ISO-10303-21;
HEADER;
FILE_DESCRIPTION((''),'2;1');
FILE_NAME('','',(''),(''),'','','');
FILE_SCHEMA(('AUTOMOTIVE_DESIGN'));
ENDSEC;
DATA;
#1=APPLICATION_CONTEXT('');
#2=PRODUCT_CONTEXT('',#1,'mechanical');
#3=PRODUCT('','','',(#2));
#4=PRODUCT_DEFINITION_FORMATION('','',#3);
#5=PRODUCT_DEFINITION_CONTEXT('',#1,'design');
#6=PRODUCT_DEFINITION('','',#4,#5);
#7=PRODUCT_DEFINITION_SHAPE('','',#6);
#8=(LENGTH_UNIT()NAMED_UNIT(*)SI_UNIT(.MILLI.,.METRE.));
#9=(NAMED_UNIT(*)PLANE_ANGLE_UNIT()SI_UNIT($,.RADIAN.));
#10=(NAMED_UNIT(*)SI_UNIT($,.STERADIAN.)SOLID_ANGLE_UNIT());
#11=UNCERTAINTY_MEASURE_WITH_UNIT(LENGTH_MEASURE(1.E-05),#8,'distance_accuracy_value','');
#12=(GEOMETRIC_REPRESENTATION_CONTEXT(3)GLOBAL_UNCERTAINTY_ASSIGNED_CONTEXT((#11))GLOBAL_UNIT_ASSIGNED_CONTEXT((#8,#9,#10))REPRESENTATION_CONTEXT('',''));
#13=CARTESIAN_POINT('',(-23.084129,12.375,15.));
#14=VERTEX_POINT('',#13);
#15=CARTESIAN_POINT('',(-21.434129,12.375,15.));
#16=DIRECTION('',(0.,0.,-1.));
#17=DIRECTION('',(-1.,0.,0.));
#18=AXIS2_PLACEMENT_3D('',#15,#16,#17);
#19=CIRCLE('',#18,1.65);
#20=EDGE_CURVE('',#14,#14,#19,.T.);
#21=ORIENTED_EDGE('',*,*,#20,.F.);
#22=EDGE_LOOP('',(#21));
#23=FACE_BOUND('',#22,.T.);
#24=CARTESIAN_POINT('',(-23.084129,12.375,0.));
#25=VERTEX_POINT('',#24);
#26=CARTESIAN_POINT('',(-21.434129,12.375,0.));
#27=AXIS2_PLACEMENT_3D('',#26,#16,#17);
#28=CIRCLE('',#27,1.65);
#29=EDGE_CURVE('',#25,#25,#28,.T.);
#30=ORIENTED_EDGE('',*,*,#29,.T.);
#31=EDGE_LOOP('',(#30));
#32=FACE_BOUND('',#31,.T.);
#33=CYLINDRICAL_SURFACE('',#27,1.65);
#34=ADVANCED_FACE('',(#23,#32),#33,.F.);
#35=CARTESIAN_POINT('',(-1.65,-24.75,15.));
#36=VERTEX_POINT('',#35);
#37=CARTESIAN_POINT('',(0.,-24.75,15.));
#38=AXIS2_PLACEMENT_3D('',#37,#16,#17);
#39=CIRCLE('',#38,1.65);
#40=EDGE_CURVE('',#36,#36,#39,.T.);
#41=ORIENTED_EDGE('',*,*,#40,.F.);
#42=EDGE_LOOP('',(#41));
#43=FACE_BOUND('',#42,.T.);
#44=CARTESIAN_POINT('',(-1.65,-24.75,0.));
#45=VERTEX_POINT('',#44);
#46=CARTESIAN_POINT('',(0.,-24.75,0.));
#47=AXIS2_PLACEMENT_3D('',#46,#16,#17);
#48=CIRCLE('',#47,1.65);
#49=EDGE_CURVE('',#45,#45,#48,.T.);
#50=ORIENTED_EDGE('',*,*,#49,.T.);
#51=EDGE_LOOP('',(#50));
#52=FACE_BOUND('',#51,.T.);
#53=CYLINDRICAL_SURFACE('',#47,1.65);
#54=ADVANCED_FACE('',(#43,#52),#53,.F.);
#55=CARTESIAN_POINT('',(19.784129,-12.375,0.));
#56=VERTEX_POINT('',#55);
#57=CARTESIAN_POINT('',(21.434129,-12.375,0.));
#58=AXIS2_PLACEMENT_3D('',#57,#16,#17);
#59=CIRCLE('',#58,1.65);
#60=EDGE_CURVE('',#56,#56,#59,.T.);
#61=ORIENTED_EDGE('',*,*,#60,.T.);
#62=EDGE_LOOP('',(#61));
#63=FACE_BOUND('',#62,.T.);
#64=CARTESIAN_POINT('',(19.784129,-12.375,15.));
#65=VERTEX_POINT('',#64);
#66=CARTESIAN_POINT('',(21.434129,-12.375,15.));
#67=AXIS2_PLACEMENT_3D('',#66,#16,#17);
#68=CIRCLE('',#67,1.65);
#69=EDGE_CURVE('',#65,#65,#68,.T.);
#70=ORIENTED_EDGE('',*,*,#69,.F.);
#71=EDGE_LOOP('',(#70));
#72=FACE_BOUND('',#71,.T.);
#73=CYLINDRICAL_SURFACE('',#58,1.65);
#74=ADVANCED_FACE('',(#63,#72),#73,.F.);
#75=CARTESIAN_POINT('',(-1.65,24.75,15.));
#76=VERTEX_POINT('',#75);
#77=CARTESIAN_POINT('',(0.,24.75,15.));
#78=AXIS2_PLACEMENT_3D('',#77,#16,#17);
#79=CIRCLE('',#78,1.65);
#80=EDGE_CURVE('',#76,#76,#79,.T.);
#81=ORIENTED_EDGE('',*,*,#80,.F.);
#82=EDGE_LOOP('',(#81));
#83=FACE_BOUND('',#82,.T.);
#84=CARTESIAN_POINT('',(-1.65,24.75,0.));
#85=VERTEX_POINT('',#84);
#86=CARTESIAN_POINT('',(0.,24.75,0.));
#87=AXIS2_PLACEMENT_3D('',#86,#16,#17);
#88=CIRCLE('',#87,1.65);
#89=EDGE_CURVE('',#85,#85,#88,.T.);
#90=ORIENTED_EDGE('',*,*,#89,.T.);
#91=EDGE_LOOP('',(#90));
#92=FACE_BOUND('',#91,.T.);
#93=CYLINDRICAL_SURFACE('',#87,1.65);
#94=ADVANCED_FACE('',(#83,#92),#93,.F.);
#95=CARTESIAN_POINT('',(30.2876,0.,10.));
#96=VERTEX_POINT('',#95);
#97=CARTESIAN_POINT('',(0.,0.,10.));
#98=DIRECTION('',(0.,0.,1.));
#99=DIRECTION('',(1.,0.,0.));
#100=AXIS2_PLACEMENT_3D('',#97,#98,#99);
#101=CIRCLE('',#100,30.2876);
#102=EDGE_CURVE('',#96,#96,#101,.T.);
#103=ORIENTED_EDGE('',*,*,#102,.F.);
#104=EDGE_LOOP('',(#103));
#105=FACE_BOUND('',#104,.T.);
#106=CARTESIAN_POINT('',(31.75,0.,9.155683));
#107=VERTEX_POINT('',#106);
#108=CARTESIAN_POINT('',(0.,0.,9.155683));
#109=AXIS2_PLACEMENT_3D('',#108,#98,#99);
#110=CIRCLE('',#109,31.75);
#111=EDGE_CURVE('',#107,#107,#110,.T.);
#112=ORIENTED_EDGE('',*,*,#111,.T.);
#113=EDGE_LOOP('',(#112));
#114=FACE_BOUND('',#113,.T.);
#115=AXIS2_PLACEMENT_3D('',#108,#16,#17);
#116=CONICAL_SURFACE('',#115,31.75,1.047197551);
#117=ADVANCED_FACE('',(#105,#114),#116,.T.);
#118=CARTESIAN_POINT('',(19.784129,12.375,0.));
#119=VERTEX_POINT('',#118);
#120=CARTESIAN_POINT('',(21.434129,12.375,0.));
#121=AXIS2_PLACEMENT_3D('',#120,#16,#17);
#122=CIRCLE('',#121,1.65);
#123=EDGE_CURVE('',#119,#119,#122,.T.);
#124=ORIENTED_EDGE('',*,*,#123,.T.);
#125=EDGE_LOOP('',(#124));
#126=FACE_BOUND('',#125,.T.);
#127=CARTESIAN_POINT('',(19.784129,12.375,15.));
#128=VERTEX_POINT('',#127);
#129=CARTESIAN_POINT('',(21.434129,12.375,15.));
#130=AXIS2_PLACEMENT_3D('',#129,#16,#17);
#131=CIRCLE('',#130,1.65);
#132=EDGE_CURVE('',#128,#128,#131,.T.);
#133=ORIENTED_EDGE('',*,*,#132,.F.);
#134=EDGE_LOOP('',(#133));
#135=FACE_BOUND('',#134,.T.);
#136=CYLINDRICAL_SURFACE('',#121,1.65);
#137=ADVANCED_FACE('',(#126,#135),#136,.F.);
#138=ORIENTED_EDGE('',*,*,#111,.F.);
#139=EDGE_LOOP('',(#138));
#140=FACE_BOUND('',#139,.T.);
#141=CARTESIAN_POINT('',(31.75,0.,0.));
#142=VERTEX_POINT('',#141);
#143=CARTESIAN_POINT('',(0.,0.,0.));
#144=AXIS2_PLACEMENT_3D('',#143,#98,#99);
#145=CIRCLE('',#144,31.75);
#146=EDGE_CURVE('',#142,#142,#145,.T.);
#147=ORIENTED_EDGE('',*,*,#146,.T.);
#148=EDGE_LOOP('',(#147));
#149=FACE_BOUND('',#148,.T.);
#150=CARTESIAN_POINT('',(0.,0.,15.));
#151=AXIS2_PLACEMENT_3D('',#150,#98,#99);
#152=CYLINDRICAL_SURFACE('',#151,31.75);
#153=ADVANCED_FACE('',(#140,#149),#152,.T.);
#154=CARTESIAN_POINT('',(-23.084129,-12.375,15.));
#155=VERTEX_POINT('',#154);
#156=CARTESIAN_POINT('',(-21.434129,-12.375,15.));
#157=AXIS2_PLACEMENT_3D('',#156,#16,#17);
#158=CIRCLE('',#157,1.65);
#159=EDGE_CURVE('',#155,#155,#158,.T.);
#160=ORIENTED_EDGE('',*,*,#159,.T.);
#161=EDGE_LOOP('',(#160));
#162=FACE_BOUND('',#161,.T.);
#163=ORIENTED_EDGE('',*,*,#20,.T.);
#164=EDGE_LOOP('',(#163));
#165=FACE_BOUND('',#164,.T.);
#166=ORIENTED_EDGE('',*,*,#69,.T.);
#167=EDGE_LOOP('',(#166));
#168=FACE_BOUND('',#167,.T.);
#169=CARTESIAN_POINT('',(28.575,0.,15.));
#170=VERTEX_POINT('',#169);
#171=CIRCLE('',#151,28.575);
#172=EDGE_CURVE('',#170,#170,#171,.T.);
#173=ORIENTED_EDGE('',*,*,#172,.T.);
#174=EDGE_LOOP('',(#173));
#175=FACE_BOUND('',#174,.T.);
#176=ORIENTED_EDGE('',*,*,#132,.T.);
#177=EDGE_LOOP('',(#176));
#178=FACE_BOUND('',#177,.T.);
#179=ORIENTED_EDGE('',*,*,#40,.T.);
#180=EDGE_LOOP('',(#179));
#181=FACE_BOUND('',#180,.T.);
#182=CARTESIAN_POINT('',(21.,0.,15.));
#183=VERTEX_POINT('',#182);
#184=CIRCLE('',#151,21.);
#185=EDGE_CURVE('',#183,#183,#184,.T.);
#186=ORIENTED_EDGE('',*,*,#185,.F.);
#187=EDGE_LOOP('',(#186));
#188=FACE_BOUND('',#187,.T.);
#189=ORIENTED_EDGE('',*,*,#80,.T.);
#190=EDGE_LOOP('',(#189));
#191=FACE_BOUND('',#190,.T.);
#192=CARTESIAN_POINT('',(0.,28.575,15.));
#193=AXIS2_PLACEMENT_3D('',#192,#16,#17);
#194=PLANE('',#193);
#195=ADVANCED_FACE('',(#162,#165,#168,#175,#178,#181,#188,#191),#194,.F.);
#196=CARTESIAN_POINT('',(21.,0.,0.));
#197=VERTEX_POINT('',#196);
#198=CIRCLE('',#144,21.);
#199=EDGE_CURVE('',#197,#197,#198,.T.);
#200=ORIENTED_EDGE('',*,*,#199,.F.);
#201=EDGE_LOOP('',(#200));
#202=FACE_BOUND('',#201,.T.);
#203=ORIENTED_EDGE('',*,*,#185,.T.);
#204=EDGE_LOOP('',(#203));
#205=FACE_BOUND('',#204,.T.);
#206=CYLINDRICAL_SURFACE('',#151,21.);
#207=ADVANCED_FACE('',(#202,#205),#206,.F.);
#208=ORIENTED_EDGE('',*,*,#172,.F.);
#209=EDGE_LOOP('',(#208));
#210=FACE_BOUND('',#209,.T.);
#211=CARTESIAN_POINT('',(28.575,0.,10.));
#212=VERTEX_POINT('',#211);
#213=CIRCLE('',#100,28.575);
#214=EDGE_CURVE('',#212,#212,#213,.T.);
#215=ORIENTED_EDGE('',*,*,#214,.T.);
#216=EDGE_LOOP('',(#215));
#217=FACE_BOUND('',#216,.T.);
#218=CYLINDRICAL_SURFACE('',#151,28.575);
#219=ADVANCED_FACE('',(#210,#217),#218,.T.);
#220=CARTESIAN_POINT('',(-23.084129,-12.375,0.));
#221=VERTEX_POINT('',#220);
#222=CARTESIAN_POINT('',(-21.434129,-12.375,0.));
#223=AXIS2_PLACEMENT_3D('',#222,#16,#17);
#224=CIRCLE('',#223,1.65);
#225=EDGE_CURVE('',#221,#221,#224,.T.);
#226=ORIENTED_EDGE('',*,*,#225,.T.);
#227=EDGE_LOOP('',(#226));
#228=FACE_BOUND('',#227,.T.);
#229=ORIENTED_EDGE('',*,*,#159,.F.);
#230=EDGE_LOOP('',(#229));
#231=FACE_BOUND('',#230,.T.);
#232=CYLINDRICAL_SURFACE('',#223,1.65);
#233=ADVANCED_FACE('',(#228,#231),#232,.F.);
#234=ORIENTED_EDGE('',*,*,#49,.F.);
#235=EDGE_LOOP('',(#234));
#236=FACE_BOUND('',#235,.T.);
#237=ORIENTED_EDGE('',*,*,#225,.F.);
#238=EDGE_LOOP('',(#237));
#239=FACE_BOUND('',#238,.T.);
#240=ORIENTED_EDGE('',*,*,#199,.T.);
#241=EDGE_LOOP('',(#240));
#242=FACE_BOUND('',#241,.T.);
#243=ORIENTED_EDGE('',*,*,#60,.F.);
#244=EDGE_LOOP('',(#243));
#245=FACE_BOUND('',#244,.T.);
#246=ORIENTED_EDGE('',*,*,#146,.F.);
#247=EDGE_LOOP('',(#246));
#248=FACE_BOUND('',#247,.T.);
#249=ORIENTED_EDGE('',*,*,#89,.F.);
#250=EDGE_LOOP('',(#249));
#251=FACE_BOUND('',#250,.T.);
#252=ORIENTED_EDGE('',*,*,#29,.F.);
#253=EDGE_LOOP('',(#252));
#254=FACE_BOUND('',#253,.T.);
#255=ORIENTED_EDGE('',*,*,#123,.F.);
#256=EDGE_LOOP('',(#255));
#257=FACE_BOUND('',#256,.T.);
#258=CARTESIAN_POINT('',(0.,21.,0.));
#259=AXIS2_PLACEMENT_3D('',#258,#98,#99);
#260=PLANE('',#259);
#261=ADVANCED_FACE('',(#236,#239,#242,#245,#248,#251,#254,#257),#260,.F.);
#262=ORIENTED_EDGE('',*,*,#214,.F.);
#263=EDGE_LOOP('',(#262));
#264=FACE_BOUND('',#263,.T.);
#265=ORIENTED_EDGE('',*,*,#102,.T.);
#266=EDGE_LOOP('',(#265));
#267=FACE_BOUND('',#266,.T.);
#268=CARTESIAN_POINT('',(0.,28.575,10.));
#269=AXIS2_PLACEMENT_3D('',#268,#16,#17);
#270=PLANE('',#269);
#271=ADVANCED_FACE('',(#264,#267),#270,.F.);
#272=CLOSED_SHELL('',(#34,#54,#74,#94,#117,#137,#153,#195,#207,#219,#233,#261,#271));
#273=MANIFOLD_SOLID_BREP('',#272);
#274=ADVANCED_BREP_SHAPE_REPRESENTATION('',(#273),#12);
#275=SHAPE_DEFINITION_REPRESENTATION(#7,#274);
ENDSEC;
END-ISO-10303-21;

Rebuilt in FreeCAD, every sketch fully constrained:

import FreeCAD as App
import Part
import Sketcher

V = App.Vector
Q = App.Units.Quantity

doc = App.newDocument("Part")
body = doc.addObject("PartDesign::Body", "Body")

sketch1 = doc.addObject("Sketcher::SketchObject", "Sketch")
body.addObject(sketch1)
sketch1.AttachmentSupport = (doc.YZ_Plane, [""])
sketch1.MapMode = "FlatFace"
sketch1.addGeometry([
    Part.LineSegment(V(31.75, 0, 0), V(31.75, 9.155683, 0)),
    Part.LineSegment(V(31.75, 9.155683, 0), V(30.2876, 10, 0)),
    Part.LineSegment(V(30.2876, 10, 0), V(28.575, 10, 0)),
    Part.LineSegment(V(28.575, 10, 0), V(28.575, 15, 0)),
    Part.LineSegment(V(28.575, 15, 0), V(21, 15, 0)),
    Part.LineSegment(V(21, 15, 0), V(21, 0, 0)),
    Part.LineSegment(V(21, 0, 0), V(31.75, 0, 0)),
], False)
sketch1.addConstraint([
    Sketcher.Constraint("Coincident", 0, 2, 1, 1),
    Sketcher.Constraint("Coincident", 1, 2, 2, 1),
    Sketcher.Constraint("Coincident", 2, 2, 3, 1),
    Sketcher.Constraint("Coincident", 3, 2, 4, 1),
    Sketcher.Constraint("Coincident", 4, 2, 5, 1),
    Sketcher.Constraint("Coincident", 5, 2, 6, 1),
    Sketcher.Constraint("Coincident", 6, 2, 0, 1),
    Sketcher.Constraint("Vertical", 0),
    Sketcher.Constraint("Horizontal", 2),
    Sketcher.Constraint("Vertical", 3),
    Sketcher.Constraint("Horizontal", 4),
    Sketcher.Constraint("Vertical", 5),
    Sketcher.Constraint("Horizontal", 6),
    Sketcher.Constraint("PointOnObject", 5, 2, -1),
    Sketcher.Constraint("DistanceY", 3, 1, 3, 2, 5.0),
    Sketcher.Constraint("DistanceY", 5, 2, 5, 1, 15.0),
    Sketcher.Constraint("Angle", 1, Q("150 deg")),
    Sketcher.Constraint("DistanceX", -1, 1, 4, 2, 21.0),
    Sketcher.Constraint("DistanceX", 6, 1, 6, 2, 10.75),
    Sketcher.Constraint("DistanceX", 4, 2, 4, 1, 7.575),
    Sketcher.Constraint("DistanceX", 2, 2, 2, 1, 1.7126),
])
revolution = doc.addObject("PartDesign::Revolution", "Revolution")
body.addObject(revolution)
revolution.Profile = sketch1
revolution.ReferenceAxis = (sketch1, ["V_Axis"])
revolution.Angle = 360

sketch2 = doc.addObject("Sketcher::SketchObject", "Sketch001")
body.addObject(sketch2)
sketch2.AttachmentSupport = (doc.XY_Plane, [""])
sketch2.MapMode = "FlatFace"
sketch2.addGeometry(Part.Circle(V(0, 24.75, 0), V(0, 0, 1), 1.65), False)
sketch2.addConstraint([
    Sketcher.Constraint("PointOnObject", 0, 3, -2),
    Sketcher.Constraint("Diameter", 0, 3.3),
    Sketcher.Constraint("DistanceY", -1, 1, 0, 3, 24.75),
])
doc.recompute()
hole = doc.addObject("PartDesign::Hole", "Hole")
body.addObject(hole)
hole.Profile = sketch2
hole.ThreadType = "None"
hole.Diameter = 3.3
hole.DepthType = "ThroughAll"
hole.Reversed = True
doc.recompute()

polarpattern = doc.addObject("PartDesign::PolarPattern", "PolarPattern")
body.addObject(polarpattern)
polarpattern.Originals = [hole]
polarpattern.Axis = (doc.Z_Axis, [""])
polarpattern.Angle = 360
polarpattern.Occurrences = 6
body.Tip = polarpattern

doc.recompute()
